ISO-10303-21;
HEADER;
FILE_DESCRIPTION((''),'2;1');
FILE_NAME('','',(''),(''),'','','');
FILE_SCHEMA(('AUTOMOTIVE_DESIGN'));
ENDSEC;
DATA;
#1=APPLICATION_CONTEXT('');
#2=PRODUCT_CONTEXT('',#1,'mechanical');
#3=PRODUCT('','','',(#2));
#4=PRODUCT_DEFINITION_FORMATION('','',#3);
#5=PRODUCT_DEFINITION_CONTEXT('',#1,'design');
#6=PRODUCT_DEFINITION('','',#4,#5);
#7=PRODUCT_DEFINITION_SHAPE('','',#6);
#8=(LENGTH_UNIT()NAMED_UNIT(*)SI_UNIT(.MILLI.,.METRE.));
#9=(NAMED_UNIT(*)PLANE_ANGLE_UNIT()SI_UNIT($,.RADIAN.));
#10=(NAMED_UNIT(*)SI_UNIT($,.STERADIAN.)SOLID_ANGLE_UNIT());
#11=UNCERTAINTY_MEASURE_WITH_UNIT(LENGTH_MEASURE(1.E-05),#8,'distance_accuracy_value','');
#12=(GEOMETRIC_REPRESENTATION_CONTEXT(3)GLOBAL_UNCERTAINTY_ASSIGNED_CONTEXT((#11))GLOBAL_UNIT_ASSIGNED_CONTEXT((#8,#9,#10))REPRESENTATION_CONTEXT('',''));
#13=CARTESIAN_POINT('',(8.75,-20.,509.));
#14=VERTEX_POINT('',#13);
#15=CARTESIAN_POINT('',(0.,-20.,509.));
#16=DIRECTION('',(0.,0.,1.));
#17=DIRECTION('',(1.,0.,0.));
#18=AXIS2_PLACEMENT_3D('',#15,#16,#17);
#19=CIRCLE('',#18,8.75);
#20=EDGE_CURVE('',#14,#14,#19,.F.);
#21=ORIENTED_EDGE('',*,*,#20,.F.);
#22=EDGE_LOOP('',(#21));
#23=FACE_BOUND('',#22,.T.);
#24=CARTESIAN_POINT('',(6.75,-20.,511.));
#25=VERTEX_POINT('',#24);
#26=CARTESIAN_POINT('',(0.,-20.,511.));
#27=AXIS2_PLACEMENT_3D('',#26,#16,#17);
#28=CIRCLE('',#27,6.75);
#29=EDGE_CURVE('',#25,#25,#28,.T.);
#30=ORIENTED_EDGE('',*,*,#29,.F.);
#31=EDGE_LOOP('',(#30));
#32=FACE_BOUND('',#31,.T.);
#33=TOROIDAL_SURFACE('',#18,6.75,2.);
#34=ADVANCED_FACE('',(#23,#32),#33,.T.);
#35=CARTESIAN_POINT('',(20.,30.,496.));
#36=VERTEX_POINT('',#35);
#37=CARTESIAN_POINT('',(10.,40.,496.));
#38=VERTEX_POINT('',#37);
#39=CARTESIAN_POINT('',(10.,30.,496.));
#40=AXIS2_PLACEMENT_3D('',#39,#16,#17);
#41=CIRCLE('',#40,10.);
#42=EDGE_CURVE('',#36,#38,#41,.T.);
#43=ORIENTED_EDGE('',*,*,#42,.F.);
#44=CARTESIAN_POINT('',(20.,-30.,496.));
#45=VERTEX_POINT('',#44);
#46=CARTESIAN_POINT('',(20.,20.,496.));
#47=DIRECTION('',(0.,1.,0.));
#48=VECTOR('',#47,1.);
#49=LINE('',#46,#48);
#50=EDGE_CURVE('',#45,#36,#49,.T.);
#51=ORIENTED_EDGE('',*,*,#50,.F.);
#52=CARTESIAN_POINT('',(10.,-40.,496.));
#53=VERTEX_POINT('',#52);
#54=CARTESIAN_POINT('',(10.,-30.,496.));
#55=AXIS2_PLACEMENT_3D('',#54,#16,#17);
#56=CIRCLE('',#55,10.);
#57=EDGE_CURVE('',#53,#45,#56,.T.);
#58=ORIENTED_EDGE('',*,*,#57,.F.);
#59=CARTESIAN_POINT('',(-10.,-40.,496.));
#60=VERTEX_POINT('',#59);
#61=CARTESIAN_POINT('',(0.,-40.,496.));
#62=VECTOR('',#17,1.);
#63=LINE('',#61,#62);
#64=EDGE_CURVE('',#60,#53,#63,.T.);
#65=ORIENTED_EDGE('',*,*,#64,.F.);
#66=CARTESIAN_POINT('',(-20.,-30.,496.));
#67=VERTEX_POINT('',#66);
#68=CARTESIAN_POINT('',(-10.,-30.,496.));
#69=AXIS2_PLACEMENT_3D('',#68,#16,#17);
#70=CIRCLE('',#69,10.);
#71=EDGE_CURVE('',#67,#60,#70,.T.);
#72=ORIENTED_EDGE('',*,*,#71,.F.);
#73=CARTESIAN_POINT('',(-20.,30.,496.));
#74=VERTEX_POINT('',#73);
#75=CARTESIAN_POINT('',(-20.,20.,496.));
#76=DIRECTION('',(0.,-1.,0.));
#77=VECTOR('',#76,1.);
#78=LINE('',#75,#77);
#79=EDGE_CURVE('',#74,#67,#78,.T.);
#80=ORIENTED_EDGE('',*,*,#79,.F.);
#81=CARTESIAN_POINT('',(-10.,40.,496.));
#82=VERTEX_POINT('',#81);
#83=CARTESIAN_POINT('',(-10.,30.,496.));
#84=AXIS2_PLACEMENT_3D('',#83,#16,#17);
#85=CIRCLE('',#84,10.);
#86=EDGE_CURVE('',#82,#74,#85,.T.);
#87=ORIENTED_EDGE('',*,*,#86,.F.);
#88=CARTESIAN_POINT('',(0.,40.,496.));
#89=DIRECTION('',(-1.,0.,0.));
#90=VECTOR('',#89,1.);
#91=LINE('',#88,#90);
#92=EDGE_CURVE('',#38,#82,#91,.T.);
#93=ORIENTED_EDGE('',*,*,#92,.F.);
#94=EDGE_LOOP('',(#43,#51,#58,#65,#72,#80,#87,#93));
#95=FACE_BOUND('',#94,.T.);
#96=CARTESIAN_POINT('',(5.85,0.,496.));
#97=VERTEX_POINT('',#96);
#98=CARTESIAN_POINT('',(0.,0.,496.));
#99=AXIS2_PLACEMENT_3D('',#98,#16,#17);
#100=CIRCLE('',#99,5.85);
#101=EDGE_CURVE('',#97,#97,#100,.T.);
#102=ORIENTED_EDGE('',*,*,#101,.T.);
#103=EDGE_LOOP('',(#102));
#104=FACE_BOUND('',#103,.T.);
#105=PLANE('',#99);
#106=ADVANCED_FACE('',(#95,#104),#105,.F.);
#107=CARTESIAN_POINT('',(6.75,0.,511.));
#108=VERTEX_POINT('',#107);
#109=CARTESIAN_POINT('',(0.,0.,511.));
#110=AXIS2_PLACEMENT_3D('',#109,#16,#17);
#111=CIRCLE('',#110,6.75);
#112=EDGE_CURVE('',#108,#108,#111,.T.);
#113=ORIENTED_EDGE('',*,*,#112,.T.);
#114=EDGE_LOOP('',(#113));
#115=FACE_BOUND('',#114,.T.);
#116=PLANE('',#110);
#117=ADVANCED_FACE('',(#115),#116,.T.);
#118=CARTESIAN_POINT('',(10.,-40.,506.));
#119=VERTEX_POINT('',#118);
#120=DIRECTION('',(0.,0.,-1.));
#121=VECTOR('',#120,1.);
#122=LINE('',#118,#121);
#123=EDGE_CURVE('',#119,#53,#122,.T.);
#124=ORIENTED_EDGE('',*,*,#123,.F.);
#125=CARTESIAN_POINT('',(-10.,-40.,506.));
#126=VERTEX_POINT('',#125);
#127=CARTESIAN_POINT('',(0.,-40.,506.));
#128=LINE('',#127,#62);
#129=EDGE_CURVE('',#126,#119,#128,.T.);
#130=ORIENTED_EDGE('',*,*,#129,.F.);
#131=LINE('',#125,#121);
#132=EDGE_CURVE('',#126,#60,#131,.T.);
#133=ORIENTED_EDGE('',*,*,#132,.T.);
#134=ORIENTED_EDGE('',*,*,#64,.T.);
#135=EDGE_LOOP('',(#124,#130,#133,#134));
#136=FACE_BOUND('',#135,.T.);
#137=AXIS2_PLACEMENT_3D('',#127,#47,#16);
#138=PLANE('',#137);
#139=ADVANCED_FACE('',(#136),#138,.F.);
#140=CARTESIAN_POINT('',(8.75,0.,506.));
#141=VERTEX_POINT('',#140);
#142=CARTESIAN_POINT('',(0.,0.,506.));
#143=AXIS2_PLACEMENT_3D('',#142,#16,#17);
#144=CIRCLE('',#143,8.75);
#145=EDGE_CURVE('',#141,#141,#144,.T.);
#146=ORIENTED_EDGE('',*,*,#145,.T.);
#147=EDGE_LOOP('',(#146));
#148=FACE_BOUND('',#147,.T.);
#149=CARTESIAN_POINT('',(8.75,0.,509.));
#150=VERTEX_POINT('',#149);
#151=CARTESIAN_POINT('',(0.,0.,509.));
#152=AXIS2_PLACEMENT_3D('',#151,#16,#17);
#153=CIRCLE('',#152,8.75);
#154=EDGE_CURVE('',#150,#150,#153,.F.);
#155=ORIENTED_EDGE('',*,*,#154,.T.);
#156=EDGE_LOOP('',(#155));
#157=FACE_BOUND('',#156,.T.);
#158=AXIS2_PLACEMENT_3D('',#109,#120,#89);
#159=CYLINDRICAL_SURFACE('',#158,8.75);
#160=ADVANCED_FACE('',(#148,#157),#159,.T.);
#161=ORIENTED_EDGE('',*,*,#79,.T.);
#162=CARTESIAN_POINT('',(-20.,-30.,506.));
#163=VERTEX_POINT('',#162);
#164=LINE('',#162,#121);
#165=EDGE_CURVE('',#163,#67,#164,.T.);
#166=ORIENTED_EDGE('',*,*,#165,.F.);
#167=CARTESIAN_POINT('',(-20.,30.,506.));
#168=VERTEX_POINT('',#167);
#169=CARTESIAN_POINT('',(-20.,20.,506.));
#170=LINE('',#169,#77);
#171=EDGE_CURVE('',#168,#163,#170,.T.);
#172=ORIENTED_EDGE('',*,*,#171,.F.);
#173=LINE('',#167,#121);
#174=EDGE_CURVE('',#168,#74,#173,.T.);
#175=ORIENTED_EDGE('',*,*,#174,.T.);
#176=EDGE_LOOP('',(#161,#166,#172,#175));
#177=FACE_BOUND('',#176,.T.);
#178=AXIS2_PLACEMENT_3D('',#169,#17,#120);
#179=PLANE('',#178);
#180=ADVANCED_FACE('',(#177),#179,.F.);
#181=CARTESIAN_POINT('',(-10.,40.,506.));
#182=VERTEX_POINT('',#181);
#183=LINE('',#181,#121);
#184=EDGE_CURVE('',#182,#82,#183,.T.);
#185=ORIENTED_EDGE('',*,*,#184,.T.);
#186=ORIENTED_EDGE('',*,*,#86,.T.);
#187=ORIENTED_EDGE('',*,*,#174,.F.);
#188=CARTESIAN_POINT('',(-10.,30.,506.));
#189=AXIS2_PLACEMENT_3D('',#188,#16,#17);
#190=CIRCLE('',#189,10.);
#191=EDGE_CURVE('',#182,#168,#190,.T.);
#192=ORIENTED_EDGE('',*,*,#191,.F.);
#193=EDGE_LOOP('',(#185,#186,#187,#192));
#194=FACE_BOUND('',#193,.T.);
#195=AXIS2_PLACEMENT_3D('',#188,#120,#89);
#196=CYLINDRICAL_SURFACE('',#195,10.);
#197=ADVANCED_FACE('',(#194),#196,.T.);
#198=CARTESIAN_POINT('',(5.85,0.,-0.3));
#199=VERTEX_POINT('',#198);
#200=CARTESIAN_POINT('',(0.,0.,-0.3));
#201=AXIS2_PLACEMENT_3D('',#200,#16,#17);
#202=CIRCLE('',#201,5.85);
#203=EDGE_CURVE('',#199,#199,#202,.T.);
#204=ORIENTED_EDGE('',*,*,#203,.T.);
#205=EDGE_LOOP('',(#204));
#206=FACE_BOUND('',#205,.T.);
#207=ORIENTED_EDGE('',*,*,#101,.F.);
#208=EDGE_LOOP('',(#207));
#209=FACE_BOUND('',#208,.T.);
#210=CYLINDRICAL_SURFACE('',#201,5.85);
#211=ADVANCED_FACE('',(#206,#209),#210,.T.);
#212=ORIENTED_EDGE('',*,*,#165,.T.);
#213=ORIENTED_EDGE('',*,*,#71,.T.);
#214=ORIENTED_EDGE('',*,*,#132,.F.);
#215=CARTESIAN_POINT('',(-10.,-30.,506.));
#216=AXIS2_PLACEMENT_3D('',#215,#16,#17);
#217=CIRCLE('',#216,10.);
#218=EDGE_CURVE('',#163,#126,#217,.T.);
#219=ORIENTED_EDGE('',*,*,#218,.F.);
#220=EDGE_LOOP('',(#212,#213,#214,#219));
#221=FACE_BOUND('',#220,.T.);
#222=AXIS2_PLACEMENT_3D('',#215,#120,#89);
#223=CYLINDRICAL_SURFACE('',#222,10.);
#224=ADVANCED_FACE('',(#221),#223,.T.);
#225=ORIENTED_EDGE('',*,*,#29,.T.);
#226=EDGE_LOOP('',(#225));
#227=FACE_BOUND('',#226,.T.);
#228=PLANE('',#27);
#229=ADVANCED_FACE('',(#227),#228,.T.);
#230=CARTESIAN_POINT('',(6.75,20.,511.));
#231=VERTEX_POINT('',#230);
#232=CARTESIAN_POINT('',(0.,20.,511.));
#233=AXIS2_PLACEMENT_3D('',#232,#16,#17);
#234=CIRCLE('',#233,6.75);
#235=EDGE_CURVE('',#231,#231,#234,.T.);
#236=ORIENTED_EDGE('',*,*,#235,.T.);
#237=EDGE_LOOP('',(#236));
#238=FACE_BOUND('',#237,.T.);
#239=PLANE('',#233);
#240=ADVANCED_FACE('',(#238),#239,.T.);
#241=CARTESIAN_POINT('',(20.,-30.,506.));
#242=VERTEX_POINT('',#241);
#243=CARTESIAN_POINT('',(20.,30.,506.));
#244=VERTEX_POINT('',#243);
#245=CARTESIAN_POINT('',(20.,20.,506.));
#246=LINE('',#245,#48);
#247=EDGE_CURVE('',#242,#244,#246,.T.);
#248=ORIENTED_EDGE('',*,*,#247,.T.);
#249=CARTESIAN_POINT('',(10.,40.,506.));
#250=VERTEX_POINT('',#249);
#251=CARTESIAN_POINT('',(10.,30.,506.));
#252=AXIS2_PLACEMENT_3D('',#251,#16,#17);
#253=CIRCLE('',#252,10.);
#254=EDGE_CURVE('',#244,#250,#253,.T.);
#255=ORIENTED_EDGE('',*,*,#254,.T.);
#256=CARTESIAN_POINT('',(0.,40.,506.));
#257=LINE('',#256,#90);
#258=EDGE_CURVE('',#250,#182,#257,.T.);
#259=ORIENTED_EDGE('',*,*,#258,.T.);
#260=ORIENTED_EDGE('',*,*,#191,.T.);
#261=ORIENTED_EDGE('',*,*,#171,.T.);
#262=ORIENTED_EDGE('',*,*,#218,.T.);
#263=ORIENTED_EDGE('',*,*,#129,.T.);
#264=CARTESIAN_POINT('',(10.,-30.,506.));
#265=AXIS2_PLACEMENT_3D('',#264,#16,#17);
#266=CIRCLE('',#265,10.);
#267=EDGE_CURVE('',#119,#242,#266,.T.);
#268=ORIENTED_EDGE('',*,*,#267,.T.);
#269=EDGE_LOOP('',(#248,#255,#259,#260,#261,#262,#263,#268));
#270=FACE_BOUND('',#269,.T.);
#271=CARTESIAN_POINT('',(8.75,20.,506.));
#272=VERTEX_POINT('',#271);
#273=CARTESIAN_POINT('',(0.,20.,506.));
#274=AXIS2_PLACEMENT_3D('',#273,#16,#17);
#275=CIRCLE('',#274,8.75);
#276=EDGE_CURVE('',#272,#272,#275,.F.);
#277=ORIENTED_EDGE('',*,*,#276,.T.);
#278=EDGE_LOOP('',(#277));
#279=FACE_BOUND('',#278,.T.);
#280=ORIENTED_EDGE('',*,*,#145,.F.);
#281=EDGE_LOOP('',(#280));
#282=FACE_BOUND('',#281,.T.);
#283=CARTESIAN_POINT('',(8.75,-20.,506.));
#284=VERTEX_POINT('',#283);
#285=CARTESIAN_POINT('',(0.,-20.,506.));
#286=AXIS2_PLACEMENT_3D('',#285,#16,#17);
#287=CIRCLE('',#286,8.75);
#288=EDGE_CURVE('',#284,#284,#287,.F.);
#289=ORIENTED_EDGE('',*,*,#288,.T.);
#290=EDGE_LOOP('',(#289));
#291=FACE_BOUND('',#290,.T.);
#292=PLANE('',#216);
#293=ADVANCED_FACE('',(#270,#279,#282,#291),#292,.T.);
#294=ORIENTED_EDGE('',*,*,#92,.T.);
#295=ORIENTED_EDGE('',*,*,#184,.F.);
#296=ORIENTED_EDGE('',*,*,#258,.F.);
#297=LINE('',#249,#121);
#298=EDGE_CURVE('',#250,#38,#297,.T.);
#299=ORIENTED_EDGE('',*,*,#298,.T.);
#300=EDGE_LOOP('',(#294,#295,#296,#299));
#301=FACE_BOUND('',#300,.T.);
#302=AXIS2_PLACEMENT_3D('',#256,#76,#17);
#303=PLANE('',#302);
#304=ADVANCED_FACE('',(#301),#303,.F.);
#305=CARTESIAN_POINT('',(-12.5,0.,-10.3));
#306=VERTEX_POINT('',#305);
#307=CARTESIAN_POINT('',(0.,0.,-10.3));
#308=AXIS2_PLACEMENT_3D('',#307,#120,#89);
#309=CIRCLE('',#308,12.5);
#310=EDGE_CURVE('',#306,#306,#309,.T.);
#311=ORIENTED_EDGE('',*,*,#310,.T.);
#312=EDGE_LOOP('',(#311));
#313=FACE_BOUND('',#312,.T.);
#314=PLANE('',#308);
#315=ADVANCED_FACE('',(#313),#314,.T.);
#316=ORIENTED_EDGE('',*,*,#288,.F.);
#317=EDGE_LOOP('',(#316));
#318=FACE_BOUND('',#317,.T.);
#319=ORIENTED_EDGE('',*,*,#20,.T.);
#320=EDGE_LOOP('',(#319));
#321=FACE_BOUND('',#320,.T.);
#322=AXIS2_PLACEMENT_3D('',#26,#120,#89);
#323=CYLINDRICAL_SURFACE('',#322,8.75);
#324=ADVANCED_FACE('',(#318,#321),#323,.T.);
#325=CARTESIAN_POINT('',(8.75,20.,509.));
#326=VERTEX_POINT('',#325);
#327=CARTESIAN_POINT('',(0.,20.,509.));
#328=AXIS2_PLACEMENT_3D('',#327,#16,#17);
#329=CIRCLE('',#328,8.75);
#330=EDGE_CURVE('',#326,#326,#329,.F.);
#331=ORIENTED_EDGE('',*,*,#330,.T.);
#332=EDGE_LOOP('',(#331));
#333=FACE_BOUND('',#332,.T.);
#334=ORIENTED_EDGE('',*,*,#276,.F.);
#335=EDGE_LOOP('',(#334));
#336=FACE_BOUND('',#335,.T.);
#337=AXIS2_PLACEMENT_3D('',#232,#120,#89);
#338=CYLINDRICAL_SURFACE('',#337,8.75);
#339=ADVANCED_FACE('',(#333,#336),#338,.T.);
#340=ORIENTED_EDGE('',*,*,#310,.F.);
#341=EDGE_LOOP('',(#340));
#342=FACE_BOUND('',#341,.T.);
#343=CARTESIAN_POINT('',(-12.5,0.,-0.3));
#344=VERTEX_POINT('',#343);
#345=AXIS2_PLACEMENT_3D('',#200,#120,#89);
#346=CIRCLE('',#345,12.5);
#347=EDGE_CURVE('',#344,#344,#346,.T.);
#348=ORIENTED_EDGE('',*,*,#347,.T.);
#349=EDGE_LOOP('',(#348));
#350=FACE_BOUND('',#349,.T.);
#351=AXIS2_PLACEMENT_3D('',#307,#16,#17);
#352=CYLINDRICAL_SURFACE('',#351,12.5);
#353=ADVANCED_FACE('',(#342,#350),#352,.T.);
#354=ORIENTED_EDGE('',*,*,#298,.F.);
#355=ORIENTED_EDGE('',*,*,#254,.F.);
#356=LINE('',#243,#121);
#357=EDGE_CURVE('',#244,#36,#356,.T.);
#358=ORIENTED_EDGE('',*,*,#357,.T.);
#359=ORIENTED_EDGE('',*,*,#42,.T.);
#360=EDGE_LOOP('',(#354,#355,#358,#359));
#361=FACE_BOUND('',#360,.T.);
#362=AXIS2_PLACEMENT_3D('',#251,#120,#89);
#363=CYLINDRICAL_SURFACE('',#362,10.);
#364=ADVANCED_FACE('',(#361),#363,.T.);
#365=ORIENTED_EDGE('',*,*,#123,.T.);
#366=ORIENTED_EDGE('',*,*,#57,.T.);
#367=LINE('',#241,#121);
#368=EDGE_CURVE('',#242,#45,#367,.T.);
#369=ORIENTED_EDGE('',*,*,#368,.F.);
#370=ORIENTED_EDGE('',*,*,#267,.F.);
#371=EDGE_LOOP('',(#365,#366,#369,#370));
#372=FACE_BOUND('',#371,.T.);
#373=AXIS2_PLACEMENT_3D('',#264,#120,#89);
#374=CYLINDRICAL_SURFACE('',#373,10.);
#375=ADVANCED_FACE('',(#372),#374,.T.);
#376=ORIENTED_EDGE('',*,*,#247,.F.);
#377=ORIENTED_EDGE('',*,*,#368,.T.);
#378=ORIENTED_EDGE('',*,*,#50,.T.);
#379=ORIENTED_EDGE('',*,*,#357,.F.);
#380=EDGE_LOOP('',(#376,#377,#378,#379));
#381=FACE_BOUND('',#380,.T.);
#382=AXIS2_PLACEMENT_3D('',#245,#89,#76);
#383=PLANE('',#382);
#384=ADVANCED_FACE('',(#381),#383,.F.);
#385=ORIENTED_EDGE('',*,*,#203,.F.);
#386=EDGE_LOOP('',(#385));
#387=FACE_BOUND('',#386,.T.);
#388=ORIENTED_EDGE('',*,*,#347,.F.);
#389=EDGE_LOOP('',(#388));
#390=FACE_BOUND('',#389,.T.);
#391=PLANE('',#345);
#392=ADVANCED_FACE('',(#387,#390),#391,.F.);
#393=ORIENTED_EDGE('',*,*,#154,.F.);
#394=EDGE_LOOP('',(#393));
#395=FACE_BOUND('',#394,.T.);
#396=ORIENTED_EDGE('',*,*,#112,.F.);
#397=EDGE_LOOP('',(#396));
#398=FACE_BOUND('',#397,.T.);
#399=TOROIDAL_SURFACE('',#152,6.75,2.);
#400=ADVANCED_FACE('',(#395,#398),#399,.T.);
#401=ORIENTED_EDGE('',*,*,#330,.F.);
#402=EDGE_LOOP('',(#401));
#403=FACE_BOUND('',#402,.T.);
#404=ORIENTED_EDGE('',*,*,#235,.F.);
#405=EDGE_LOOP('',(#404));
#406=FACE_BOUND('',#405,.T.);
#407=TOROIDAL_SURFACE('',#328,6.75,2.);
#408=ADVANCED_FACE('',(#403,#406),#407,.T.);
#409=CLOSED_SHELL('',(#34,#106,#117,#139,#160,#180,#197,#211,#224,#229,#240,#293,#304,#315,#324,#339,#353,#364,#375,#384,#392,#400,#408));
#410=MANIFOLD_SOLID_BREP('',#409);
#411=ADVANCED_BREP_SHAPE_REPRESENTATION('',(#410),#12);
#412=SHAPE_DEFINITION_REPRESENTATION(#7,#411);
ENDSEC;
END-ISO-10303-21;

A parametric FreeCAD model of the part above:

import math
import FreeCAD as App
import Part
import Sketcher

V = App.Vector
Q = App.Units.Quantity


def edges_at(feature, points):
    """Names of the edges that pass closest to the given points."""
    edges = feature.Shape.Edges
    near = lambda p: min(range(len(edges)), key=lambda i: edges[i].distToShape(Part.Vertex(*p))[0])
    return sorted({f"Edge{near(p) + 1}" for p in points})

doc = App.newDocument("Part")
body = doc.addObject("PartDesign::Body", "Body")

sketch1 = body.newObject("Sketcher::SketchObject", "Sketch")
sketch1.AttachmentSupport = (doc.getObject("XY_Plane"), [""])
sketch1.MapMode = "FlatFace"
sketch1.addGeometry(Part.Circle(V(0, 0, 0), V(0, 0, 1), 5.85), False)
sketch1.addConstraint([
    Sketcher.Constraint("Coincident", 0, 3, -1, 1),
    Sketcher.Constraint("Diameter", 0, Q("11.7 mm")),
])
pad1 = body.newObject("PartDesign::Pad", "Pad")
pad1.Profile = sketch1
pad1.Type = "TwoLengths"
pad1.Length = 496
pad1.Length2 = 0.3

sketch2 = body.newObject("Sketcher::SketchObject", "Sketch001")
sketch2.AttachmentSupport = (doc.getObject("XY_Plane"), [""])
sketch2.MapMode = "FlatFace"
sketch2.AttachmentOffset = App.Placement(V(0, 0, 496), App.Rotation())
sketch2.addGeometry(Part.Circle(V(0, 0, 0), V(0, 0, 1), 8.75), False)
sketch2.addConstraint([
    Sketcher.Constraint("Coincident", 0, 3, -1, 1),
    Sketcher.Constraint("Diameter", 0, Q("17.5 mm")),
])
pad2 = body.newObject("PartDesign::Pad", "Pad001")
pad2.Profile = sketch2
pad2.Length = 15
doc.recompute()

fillet = body.newObject("PartDesign::Fillet", "Fillet")
fillet.Base = (pad2, edges_at(pad2, [(-8.75, 0, 511)]))
fillet.Radius = 2
body2 = doc.addObject("PartDesign::Body", "Body001")

sketch3 = body2.newObject("Sketcher::SketchObject", "Sketch002")
sketch3.AttachmentSupport = (doc.getObject("XY_Plane001"), [""])
sketch3.MapMode = "FlatFace"
sketch3.AttachmentOffset = App.Placement(V(0, 0, 496), App.Rotation())
sketch3.addGeometry(Part.Circle(V(0, 20, 0), V(0, 0, 1), 8.75), False)
sketch3.addConstraint([
    Sketcher.Constraint("PointOnObject", 0, 3, -2),
    Sketcher.Constraint("Diameter", 0, Q("17.5 mm")),
    Sketcher.Constraint("DistanceY", -1, 1, 0, 3, Q("20 mm")),
])
pad3 = body2.newObject("PartDesign::Pad", "Pad002")
pad3.Profile = sketch3
pad3.Length = 15
doc.recompute()

fillet2 = body2.newObject("PartDesign::Fillet", "Fillet001")
fillet2.Base = (pad3, edges_at(pad3, [(-8.75, 20, 511)]))
fillet2.Radius = 2
body3 = doc.addObject("PartDesign::Body", "Body002")

sketch4 = body3.newObject("Sketcher::SketchObject", "Sketch003")
sketch4.AttachmentSupport = (doc.getObject("XY_Plane002"), [""])
sketch4.MapMode = "FlatFace"
sketch4.AttachmentOffset = App.Placement(V(0, 0, 496), App.Rotation())
sketch4.addGeometry(Part.Circle(V(0, -20, 0), V(0, 0, 1), 8.75), False)
sketch4.addConstraint([
    Sketcher.Constraint("PointOnObject", 0, 3, -2),
    Sketcher.Constraint("Diameter", 0, Q("17.5 mm")),
    Sketcher.Constraint("DistanceY", 0, 3, -1, 1, Q("20 mm")),
])
pad4 = body3.newObject("PartDesign::Pad", "Pad003")
pad4.Profile = sketch4
pad4.Length = 15
doc.recompute()

fillet3 = body3.newObject("PartDesign::Fillet", "Fillet002")
fillet3.Base = (pad4, edges_at(pad4, [(-8.75, -20, 511)]))
fillet3.Radius = 2
body.AllowCompound = True
doc.recompute()

boolean = body.newObject("PartDesign::Boolean", "Boolean")
boolean.Type = "Fuse"
boolean.addObjects([body2])
doc.recompute()

boolean2 = body.newObject("PartDesign::Boolean", "Boolean001")
boolean2.Type = "Fuse"
boolean2.addObjects([body3])

sketch5 = body.newObject("Sketcher::SketchObject", "Sketch004")
sketch5.AttachmentSupport = (doc.getObject("XY_Plane"), [""])
sketch5.MapMode = "FlatFace"
sketch5.AttachmentOffset = App.Placement(V(0, 0, 496), App.Rotation())
sketch5.addGeometry([
    Part.LineSegment(V(-10, -40, 0), V(10, -40, 0)),
    Part.ArcOfCircle(Part.Circle(V(10, -30, 0), V(0, 0, 1), 10), math.radians(-90), math.radians(0)),
    Part.LineSegment(V(20, -30, 0), V(20, 30, 0)),
    Part.ArcOfCircle(Part.Circle(V(10, 30, 0), V(0, 0, 1), 10), math.radians(0), math.radians(90)),
    Part.LineSegment(V(10, 40, 0), V(-10, 40, 0)),
    Part.ArcOfCircle(Part.Circle(V(-10, 30, 0), V(0, 0, 1), 10), math.radians(90), math.radians(180)),
    Part.LineSegment(V(-20, 30, 0), V(-20, -30, 0)),
    Part.ArcOfCircle(Part.Circle(V(-10, -30, 0), V(0, 0, 1), 10), math.radians(180), math.radians(270)),
], False)
sketch5.addConstraint([
    Sketcher.Constraint("Tangent", 0, 2, 1, 1),
    Sketcher.Constraint("Tangent", 1, 2, 2, 1),
    Sketcher.Constraint("Tangent", 2, 2, 3, 1),
    Sketcher.Constraint("Tangent", 3, 2, 4, 1),
    Sketcher.Constraint("Tangent", 4, 2, 5, 1),
    Sketcher.Constraint("Tangent", 5, 2, 6, 1),
    Sketcher.Constraint("Tangent", 6, 2, 7, 1),
    Sketcher.Constraint("Tangent", 7, 2, 0, 1),
    Sketcher.Constraint("Horizontal", 0),
    Sketcher.Constraint("Vertical", 2),
    Sketcher.Constraint("Horizontal", 4),
    Sketcher.Constraint("Vertical", 6),
    Sketcher.Constraint("Equal", 1, 3),
    Sketcher.Constraint("Equal", 3, 5),
    Sketcher.Constraint("Equal", 5, 7),
    Sketcher.Constraint("Symmetric", 1, 3, 5, 3, -1, 1),
    Sketcher.Constraint("Radius", 1, Q("10 mm")),
    Sketcher.Constraint("DistanceX", 0, 1, 0, 2, Q("20 mm")),
    Sketcher.Constraint("DistanceY", 2, 1, 2, 2, Q("60 mm")),
])
pad5 = body.newObject("PartDesign::Pad", "Pad004")
pad5.Profile = sketch5
pad5.Length = 10

sketch6 = body.newObject("Sketcher::SketchObject", "Sketch005")
sketch6.AttachmentSupport = (doc.getObject("XY_Plane"), [""])
sketch6.MapMode = "FlatFace"
sketch6.AttachmentOffset = App.Placement(V(0, 0, -0.3), App.Rotation())
sketch6.addGeometry(Part.Circle(V(0, 0, 0), V(0, 0, 1), 12.5), False)
sketch6.addConstraint([
    Sketcher.Constraint("Coincident", 0, 3, -1, 1),
    Sketcher.Constraint("Diameter", 0, Q("25 mm")),
])
pad6 = body.newObject("PartDesign::Pad", "Pad005")
pad6.Profile = sketch6
pad6.Length = 10
pad6.Reversed = True

doc.recompute()
